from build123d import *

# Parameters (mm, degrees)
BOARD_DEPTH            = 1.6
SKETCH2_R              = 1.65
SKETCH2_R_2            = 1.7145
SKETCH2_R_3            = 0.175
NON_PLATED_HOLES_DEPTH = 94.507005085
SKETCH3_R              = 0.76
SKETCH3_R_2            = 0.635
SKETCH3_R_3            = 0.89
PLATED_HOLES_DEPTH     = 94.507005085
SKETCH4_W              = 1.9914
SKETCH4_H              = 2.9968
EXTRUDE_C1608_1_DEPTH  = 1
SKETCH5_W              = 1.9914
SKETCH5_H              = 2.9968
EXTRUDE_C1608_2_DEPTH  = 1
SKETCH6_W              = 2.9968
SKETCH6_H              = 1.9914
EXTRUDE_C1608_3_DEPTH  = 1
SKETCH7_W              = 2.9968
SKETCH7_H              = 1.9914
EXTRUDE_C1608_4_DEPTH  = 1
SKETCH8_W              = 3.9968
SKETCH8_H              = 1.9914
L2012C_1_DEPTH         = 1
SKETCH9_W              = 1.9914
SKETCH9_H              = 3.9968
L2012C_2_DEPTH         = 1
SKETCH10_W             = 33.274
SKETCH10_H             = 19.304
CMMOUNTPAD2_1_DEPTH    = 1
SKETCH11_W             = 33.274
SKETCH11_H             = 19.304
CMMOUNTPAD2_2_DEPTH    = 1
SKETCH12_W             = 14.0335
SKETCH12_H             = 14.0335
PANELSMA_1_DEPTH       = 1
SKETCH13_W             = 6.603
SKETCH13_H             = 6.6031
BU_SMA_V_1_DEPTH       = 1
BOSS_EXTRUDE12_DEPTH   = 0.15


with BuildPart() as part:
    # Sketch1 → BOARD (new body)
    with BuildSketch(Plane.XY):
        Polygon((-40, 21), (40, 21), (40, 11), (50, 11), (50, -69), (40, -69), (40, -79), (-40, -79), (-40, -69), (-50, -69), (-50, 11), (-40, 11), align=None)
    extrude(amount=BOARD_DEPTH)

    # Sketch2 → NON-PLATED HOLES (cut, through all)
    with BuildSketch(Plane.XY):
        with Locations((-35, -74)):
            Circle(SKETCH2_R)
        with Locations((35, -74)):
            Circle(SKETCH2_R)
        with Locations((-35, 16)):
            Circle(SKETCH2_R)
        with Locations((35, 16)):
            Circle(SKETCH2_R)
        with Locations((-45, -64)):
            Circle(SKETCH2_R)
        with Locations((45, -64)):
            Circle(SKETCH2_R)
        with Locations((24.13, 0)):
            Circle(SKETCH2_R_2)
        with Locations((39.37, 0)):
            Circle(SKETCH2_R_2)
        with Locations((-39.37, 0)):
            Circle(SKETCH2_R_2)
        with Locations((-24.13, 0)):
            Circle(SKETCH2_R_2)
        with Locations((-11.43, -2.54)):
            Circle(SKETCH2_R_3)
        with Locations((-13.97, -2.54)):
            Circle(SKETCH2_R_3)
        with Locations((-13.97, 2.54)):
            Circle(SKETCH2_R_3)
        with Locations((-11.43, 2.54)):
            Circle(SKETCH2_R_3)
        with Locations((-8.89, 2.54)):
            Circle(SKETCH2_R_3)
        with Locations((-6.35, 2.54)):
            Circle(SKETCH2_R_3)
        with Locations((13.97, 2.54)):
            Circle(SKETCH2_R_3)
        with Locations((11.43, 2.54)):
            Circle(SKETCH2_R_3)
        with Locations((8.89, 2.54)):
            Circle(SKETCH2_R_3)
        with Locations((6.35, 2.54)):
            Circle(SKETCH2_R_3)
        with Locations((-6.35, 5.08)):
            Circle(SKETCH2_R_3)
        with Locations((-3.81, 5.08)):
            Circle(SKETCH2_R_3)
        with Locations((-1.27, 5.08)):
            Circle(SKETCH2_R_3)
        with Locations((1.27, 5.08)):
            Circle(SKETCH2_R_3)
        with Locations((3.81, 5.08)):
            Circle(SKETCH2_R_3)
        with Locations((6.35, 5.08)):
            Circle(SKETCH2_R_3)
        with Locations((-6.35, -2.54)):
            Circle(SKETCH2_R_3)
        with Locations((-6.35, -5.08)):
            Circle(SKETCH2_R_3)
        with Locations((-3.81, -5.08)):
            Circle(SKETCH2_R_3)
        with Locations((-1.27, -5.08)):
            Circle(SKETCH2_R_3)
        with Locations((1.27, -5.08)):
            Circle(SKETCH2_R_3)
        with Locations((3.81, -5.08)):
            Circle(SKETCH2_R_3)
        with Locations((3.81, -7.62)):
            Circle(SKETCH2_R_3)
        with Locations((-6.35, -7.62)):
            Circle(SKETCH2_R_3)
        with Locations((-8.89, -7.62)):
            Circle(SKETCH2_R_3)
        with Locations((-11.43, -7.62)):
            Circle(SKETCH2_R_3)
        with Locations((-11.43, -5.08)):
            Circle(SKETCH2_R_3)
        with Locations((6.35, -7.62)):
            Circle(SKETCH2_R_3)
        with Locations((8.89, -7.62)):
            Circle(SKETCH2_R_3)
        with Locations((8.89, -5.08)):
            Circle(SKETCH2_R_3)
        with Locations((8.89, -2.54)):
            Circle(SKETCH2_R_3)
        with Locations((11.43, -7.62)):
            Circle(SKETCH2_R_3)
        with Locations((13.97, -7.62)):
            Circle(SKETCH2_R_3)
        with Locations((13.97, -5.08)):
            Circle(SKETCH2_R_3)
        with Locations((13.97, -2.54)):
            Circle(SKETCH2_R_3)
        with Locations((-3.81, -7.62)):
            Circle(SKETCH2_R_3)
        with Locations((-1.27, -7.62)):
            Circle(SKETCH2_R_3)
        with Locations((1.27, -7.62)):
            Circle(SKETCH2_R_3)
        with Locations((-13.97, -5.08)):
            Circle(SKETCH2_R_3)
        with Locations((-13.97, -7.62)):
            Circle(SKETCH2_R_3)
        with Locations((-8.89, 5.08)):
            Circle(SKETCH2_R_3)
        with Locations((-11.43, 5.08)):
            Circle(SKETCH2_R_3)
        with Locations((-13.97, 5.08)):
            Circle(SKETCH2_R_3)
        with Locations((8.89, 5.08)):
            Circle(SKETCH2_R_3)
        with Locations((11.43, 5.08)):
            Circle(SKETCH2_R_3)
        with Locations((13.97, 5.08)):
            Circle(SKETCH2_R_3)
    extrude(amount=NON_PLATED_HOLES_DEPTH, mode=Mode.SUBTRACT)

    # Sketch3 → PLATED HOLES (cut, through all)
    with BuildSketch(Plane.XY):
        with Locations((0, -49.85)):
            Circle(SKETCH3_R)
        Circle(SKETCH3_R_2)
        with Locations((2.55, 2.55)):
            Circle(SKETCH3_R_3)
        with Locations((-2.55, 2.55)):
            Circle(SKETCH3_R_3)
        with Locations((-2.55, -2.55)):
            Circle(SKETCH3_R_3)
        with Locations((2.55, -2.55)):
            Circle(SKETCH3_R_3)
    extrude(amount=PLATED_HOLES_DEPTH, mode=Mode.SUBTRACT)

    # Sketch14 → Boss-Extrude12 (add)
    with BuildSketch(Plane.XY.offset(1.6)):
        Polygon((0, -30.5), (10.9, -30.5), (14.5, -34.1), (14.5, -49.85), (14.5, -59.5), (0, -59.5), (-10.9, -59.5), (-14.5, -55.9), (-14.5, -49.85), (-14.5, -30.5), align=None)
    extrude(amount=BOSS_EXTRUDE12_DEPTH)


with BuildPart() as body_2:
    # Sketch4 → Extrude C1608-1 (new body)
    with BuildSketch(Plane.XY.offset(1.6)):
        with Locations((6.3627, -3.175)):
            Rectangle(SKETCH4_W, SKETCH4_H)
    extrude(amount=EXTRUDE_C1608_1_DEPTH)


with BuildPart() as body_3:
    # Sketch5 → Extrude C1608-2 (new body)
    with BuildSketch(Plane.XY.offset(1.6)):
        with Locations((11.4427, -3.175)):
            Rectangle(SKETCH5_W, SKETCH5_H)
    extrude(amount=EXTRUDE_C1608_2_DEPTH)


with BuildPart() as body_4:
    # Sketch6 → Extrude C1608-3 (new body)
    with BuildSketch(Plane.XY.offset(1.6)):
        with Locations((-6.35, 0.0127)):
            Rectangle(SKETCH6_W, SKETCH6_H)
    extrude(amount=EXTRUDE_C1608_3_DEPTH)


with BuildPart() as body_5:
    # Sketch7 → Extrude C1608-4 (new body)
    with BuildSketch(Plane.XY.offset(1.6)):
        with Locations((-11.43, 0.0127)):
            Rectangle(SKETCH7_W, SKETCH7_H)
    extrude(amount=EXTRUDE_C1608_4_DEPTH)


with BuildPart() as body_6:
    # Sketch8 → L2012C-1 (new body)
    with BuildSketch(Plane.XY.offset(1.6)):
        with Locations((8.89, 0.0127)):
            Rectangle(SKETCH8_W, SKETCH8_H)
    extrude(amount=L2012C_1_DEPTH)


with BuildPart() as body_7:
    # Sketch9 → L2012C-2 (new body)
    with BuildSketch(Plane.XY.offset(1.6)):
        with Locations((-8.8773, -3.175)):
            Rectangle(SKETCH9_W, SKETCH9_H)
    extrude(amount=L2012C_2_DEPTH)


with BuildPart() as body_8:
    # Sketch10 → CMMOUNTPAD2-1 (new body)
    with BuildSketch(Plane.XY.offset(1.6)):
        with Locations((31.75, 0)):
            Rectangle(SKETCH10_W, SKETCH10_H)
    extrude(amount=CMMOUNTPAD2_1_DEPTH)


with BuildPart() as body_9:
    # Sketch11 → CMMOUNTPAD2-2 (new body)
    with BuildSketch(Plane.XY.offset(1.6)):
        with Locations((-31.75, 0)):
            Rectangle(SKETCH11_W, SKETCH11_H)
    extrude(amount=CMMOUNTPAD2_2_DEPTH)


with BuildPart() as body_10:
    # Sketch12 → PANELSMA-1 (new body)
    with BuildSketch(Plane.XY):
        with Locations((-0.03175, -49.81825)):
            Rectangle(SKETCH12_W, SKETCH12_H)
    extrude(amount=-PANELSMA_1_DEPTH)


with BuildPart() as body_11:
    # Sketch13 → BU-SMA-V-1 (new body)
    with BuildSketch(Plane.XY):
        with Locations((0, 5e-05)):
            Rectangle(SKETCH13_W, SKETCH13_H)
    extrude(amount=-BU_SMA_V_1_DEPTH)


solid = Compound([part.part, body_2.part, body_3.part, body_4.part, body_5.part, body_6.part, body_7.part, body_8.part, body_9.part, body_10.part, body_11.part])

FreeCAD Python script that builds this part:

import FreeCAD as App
import Part
import Sketcher

V = App.Vector
Q = App.Units.Quantity


def add_polygon(sketch, points):
    """Adds a closed chain of lines whose ends are joined by coincident constraints."""
    first, n = sketch.GeometryCount, len(points)
    for a, b in zip(points, points[1:] + points[:1]):
        sketch.addGeometry(Part.LineSegment(App.Vector(*a, 0), App.Vector(*b, 0)), False)
    for i in range(n):
        sketch.addConstraint(Sketcher.Constraint("Coincident", first + i, 2, first + (i + 1) % n, 1))

doc = App.newDocument("Part")
body = doc.addObject("PartDesign::Body", "Body")

# Sketch on XY plane
sketch1 = doc.addObject("Sketcher::SketchObject", "Sketch")
body.addObject(sketch1)
sketch1.AttachmentSupport = (doc.XY_Plane, [""])
sketch1.MapMode = "FlatFace"
add_polygon(sketch1, [(40, 21), (-40, 21), (-40, 11), (-50, 11), (-50, -69), (-40, -69), (-40, -79), (40, -79), (40, -69), (50, -69), (50, 11), (40, 11)])  # lines 0-11
sketch1.addConstraint([
    Sketcher.Constraint("Horizontal", 0),
    Sketcher.Constraint("Vertical", 1),
    Sketcher.Constraint("Horizontal", 2),
    Sketcher.Constraint("Vertical", 3),
    Sketcher.Constraint("Horizontal", 4),
    Sketcher.Constraint("Vertical", 5),
    Sketcher.Constraint("Horizontal", 6),
    Sketcher.Constraint("Vertical", 7),
    Sketcher.Constraint("Horizontal", 8),
    Sketcher.Constraint("Vertical", 9),
    Sketcher.Constraint("Horizontal", 10),
    Sketcher.Constraint("Vertical", 11),
    Sketcher.Constraint("Symmetric", 4, 2, 7, 2, -2),
    Sketcher.Constraint("Symmetric", 2, 2, 9, 2, -2),
    Sketcher.Constraint("Vertical", 1, 2, 4, 2),
    Sketcher.Constraint("Vertical", 7, 2, 10, 2),
    Sketcher.Constraint("Equal", 10, 1),
    Sketcher.Constraint("Equal", 6, 3),
    Sketcher.Constraint("Equal", 1, 5),
    Sketcher.Constraint("DistanceX", 0, 2, 0, 1, 80.0),
    Sketcher.Constraint("DistanceX", 2, 2, 2, 1, 10.0),
    Sketcher.Constraint("DistanceY", -1, 1, 0, 2, 21.0),
])
pad1 = doc.addObject("PartDesign::Pad", "Pad")
body.addObject(pad1)
pad1.Profile = sketch1
pad1.Length = 1.6

# Sketch on XY plane
sketch2 = doc.addObject("Sketcher::SketchObject", "Sketch001")
body.addObject(sketch2)
sketch2.AttachmentSupport = (doc.XY_Plane, [""])
sketch2.MapMode = "FlatFace"
sketch2.addGeometry([
    Part.Circle(V(-35, -74, 0), V(0, 0, 1), 1.65),  # 0
    Part.Circle(V(35, -74, 0), V(0, 0, 1), 1.65),  # 1
    Part.Circle(V(-35, 16, 0), V(0, 0, 1), 1.65),  # 2
    Part.Circle(V(35, 16, 0), V(0, 0, 1), 1.65),  # 3
    Part.Circle(V(-45, -64, 0), V(0, 0, 1), 1.65),  # 4
    Part.Circle(V(45, -64, 0), V(0, 0, 1), 1.65),  # 5
    Part.Circle(V(24.13, 0, 0), V(0, 0, 1), 1.71),  # 6
    Part.Circle(V(39.37, 0, 0), V(0, 0, 1), 1.71),  # 7
    Part.Circle(V(-39.37, 0, 0), V(0, 0, 1), 1.71),  # 8
    Part.Circle(V(-24.13, 0, 0), V(0, 0, 1), 1.71),  # 9
    Part.Circle(V(-11.43, -2.54, 0), V(0, 0, 1), 0.17),  # 10
    Part.Circle(V(-13.97, -2.54, 0), V(0, 0, 1), 0.17),  # 11
    Part.Circle(V(-13.97, 2.54, 0), V(0, 0, 1), 0.17),  # 12
    Part.Circle(V(-11.43, 2.54, 0), V(0, 0, 1), 0.17),  # 13
    Part.Circle(V(-8.89, 2.54, 0), V(0, 0, 1), 0.17),  # 14
    Part.Circle(V(-6.35, 2.54, 0), V(0, 0, 1), 0.17),  # 15
    Part.Circle(V(13.97, 2.54, 0), V(0, 0, 1), 0.17),  # 16
    Part.Circle(V(11.43, 2.54, 0), V(0, 0, 1), 0.17),  # 17
    Part.Circle(V(8.89, 2.54, 0), V(0, 0, 1), 0.17),  # 18
    Part.Circle(V(6.35, 2.54, 0), V(0, 0, 1), 0.17),  # 19
    Part.Circle(V(-6.35, 5.08, 0), V(0, 0, 1), 0.17),  # 20
    Part.Circle(V(-3.81, 5.08, 0), V(0, 0, 1), 0.17),  # 21
    Part.Circle(V(-1.27, 5.08, 0), V(0, 0, 1), 0.17),  # 22
    Part.Circle(V(1.27, 5.08, 0), V(0, 0, 1), 0.17),  # 23
    Part.Circle(V(3.81, 5.08, 0), V(0, 0, 1), 0.17),  # 24
    Part.Circle(V(6.35, 5.08, 0), V(0, 0, 1), 0.17),  # 25
    Part.Circle(V(-6.35, -2.54, 0), V(0, 0, 1), 0.17),  # 26
    Part.Circle(V(-6.35, -5.08, 0), V(0, 0, 1), 0.17),  # 27
    Part.Circle(V(-3.81, -5.08, 0), V(0, 0, 1), 0.17),  # 28
    Part.Circle(V(-1.27, -5.08, 0), V(0, 0, 1), 0.17),  # 29
    Part.Circle(V(1.27, -5.08, 0), V(0, 0, 1), 0.17),  # 30
    Part.Circle(V(3.81, -5.08, 0), V(0, 0, 1), 0.17),  # 31
    Part.Circle(V(3.81, -7.62, 0), V(0, 0, 1), 0.17),  # 32
    Part.Circle(V(-6.35, -7.62, 0), V(0, 0, 1), 0.17),  # 33
    Part.Circle(V(-8.89, -7.62, 0), V(0, 0, 1), 0.17),  # 34
    Part.Circle(V(-11.43, -7.62, 0), V(0, 0, 1), 0.17),  # 35
    Part.Circle(V(-11.43, -5.08, 0), V(0, 0, 1), 0.17),  # 36
    Part.Circle(V(6.35, -7.62, 0), V(0, 0, 1), 0.17),  # 37
    Part.Circle(V(8.89, -7.62, 0), V(0, 0, 1), 0.17),  # 38
    Part.Circle(V(8.89, -5.08, 0), V(0, 0, 1), 0.17),  # 39
    Part.Circle(V(8.89, -2.54, 0), V(0, 0, 1), 0.17),  # 40
    Part.Circle(V(11.43, -7.62, 0), V(0, 0, 1), 0.17),  # 41
    Part.Circle(V(13.97, -7.62, 0), V(0, 0, 1), 0.17),  # 42
    Part.Circle(V(13.97, -5.08, 0), V(0, 0, 1), 0.17),  # 43
    Part.Circle(V(13.97, -2.54, 0), V(0, 0, 1), 0.17),  # 44
    Part.Circle(V(-3.81, -7.62, 0), V(0, 0, 1), 0.17),  # 45
    Part.Circle(V(-1.27, -7.62, 0), V(0, 0, 1), 0.17),  # 46
    Part.Circle(V(1.27, -7.62, 0), V(0, 0, 1), 0.17),  # 47
    Part.Circle(V(-13.97, -5.08, 0), V(0, 0, 1), 0.17),  # 48
    Part.Circle(V(-13.97, -7.62, 0), V(0, 0, 1), 0.17),  # 49
    Part.Circle(V(-8.89, 5.08, 0), V(0, 0, 1), 0.17),  # 50
    Part.Circle(V(-11.43, 5.08, 0), V(0, 0, 1), 0.17),  # 51
    Part.Circle(V(-13.97, 5.08, 0), V(0, 0, 1), 0.17),  # 52
    Part.Circle(V(8.89, 5.08, 0), V(0, 0, 1), 0.17),  # 53
    Part.Circle(V(11.43, 5.08, 0), V(0, 0, 1), 0.17),  # 54
    Part.Circle(V(13.97, 5.08, 0), V(0, 0, 1), 0.17),  # 55
], False)
sketch2.addConstraint([
    Sketcher.Constraint("Equal", 0, 1),
    Sketcher.Constraint("Equal", 1, 2),
    Sketcher.Constraint("Equal", 2, 3),
    Sketcher.Constraint("Equal", 3, 4),
    Sketcher.Constraint("Equal", 4, 5),
    Sketcher.Constraint("Equal", 6, 7),
    Sketcher.Constraint("Equal", 7, 8),
    Sketcher.Constraint("Equal", 8, 9),
    Sketcher.Constraint("Equal", 10, 11),
    Sketcher.Constraint("Equal", 11, 12),
    Sketcher.Constraint("Equal", 12, 13),
    Sketcher.Constraint("Equal", 13, 14),
    Sketcher.Constraint("Equal", 14, 15),
    Sketcher.Constraint("Equal", 15, 16),
    Sketcher.Constraint("Equal", 16, 17),
    Sketcher.Constraint("Equal", 17, 18),
    Sketcher.Constraint("Equal", 18, 19),
    Sketcher.Constraint("Equal", 19, 20),
    Sketcher.Constraint("Equal", 20, 21),
    Sketcher.Constraint("Equal", 21, 22),
    Sketcher.Constraint("Equal", 22, 23),
    Sketcher.Constraint("Equal", 23, 24),
    Sketcher.Constraint("Equal", 24, 25),
    Sketcher.Constraint("Equal", 25, 26),
    Sketcher.Constraint("Equal", 26, 27),
    Sketcher.Constraint("Equal", 27, 28),
    Sketcher.Constraint("Equal", 28, 29),
    Sketcher.Constraint("Equal", 29, 30),
    Sketcher.Constraint("Equal", 30, 31),
    Sketcher.Constraint("Equal", 31, 32),
    Sketcher.Constraint("Equal", 32, 33),
    Sketcher.Constraint("Equal", 33, 34),
    Sketcher.Constraint("Equal", 34, 35),
    Sketcher.Constraint("Equal", 35, 36),
    Sketcher.Constraint("Equal", 36, 37),
    Sketcher.Constraint("Equal", 37, 38),
    Sketcher.Constraint("Equal", 38, 39),
    Sketcher.Constraint("Equal", 39, 40),
    Sketcher.Constraint("Equal", 40, 41),
    Sketcher.Constraint("Equal", 41, 42),
    Sketcher.Constraint("Equal", 42, 43),
    Sketcher.Constraint("Equal", 43, 44),
    Sketcher.Constraint("Equal", 44, 45),
    Sketcher.Constraint("Equal", 45, 46),
    Sketcher.Constraint("Equal", 46, 47),
    Sketcher.Constraint("Equal", 47, 48),
    Sketcher.Constraint("Equal", 48, 49),
    Sketcher.Constraint("Equal", 49, 50),
    Sketcher.Constraint("Equal", 50, 51),
    Sketcher.Constraint("Equal", 51, 52),
    Sketcher.Constraint("Equal", 52, 53),
    Sketcher.Constraint("Equal", 53, 54),
    Sketcher.Constraint("Equal", 54, 55),
    Sketcher.Constraint("Symmetric", 7, 3, 8, 3, -1, 1),
    Sketcher.Constraint("Symmetric", 6, 3, 9, 3, -1, 1),
    Sketcher.Constraint("Symmetric", 11, 3, 16, 3, -1, 1),
    Sketcher.Constraint("Symmetric", 10, 3, 17, 3, -1, 1),
    Sketcher.Constraint("Symmetric", 19, 3, 26, 3, -1, 1),
    Sketcher.Constraint("Symmetric", 25, 3, 27, 3, -1, 1),
    Sketcher.Constraint("Symmetric", 24, 3, 28, 3, -1, 1),
    Sketcher.Constraint("Symmetric", 23, 3, 29, 3, -1, 1),
    Sketcher.Constraint("Symmetric", 22, 3, 30, 3, -1, 1),
    Sketcher.Constraint("Symmetric", 21, 3, 31, 3, -1, 1),
    Sketcher.Constraint("Symmetric", 14, 3, 40, 3, -1, 1),
    Sketcher.Constraint("Symmetric", 12, 3, 44, 3, -1, 1),
    Sketcher.Constraint("Symmetric", 39, 3, 50, 3, -1, 1),
    Sketcher.Constraint("Symmetric", 43, 3, 52, 3, -1, 1),
    Sketcher.Constraint("Symmetric", 36, 3, 54, 3, -1, 1),
    Sketcher.Constraint("Symmetric", 48, 3, 55, 3, -1, 1),
    Sketcher.Constraint("Symmetric", 0, 3, 1, 3, -2),
    Sketcher.Constraint("Symmetric", 2, 3, 3, 3, -2),
    Sketcher.Constraint("Symmetric", 4, 3, 5, 3, -2),
    Sketcher.Constraint("Symmetric", 12, 3, 16, 3, -2),
    Sketcher.Constraint("Symmetric", 13, 3, 17, 3, -2),
    Sketcher.Constraint("Symmetric", 14, 3, 18, 3, -2),
    Sketcher.Constraint("Symmetric", 15, 3, 19, 3, -2),
    Sketcher.Constraint("Symmetric", 22, 3, 23, 3, -2),
    Sketcher.Constraint("Symmetric", 21, 3, 24, 3, -2),
    Sketcher.Constraint("Symmetric", 20, 3, 25, 3, -2),
    Sketcher.Constraint("Symmetric", 33, 3, 37, 3, -2),
    Sketcher.Constraint("Symmetric", 34, 3, 38, 3, -2),
    Sketcher.Constraint("Symmetric", 35, 3, 41, 3, -2),
    Sketcher.Constraint("Symmetric", 32, 3, 45, 3, -2),
    Sketcher.Constraint("Symmetric", 46, 3, 47, 3, -2),
    Sketcher.Constraint("Symmetric", 43, 3, 48, 3, -2),
    Sketcher.Constraint("Symmetric", 42, 3, 49, 3, -2),
    Sketcher.Constraint("Symmetric", 50, 3, 53, 3, -2),
    Sketcher.Constraint("Symmetric", 51, 3, 54, 3, -2),
    Sketcher.Constraint("PointOnObject", 6, 3, -1),
    Sketcher.Constraint("PointOnObject", 7, 3, -1),
    Sketcher.Constraint("Horizontal", 10, 3, 11, 3),
    Sketcher.Constraint("Horizontal", 13, 3, 14, 3),
    Sketcher.Constraint("Horizontal", 14, 3, 15, 3),
    Sketcher.Constraint("Horizontal", 20, 3, 21, 3),
    Sketcher.Constraint("Horizontal", 21, 3, 22, 3),
    Sketcher.Constraint("Horizontal", 32, 3, 33, 3),
    Sketcher.Constraint("Horizontal", 33, 3, 34, 3),
    Sketcher.Constraint("Horizontal", 34, 3, 35, 3),
    Sketcher.Constraint("Horizontal", 31, 3, 36, 3),
    Sketcher.Constraint("Horizontal", 36, 3, 39, 3),
    Sketcher.Constraint("Horizontal", 41, 3, 42, 3),
    Sketcher.Constraint("Horizontal", 39, 3, 43, 3),
    Sketcher.Constraint("Horizontal", 45, 3, 46, 3),
    Sketcher.Constraint("Vertical", 0, 3, 2, 3),
    Sketcher.Constraint("Vertical", 15, 3, 20, 3),
    Sketcher.Constraint("Vertical", 31, 3, 32, 3),
    Sketcher.Constraint("Vertical", 27, 3, 33, 3),
    Sketcher.Constraint("Vertical", 14, 3, 34, 3),
    Sketcher.Constraint("Vertical", 13, 3, 35, 3),
    Sketcher.Constraint("Vertical", 35, 3, 36, 3),
    Sketcher.Constraint("Vertical", 38, 3, 39, 3),
    Sketcher.Constraint("Vertical", 16, 3, 42, 3),
    Sketcher.Constraint("Vertical", 42, 3, 43, 3),
    Sketcher.Constraint("Vertical", 29, 3, 46, 3),
    Sketcher.Constraint("Diameter", 0, 3.3),
    Sketcher.Constraint("Diameter", 10, 0.35),
    Sketcher.Constraint("Diameter", 6, 3.429),
    Sketcher.Constraint("DistanceX", 0, 3, -1, 1, 35.0),
    Sketcher.Constraint("DistanceY", 0, 3, -1, 1, 74.0),
    Sketcher.Constraint("DistanceY", -1, 1, 2, 3, 16.0),
    Sketcher.Constraint("DistanceX", 4, 3, -1, 1, 45.0),
    Sketcher.Constraint("DistanceY", 4, 3, -1, 1, 64.0),
    Sketcher.Constraint("DistanceX", 8, 3, 6, 3, 63.5),
    Sketcher.Constraint("DistanceX", 9, 3, 10, 3, 12.7),
    Sketcher.Constraint("DistanceX", 8, 3, 11, 3, 25.4),
    Sketcher.Constraint("DistanceX", 15, 3, 19, 3, 12.7),
    Sketcher.Constraint("DistanceX", -1, 1, 6, 3, 24.13),
    Sketcher.Constraint("DistanceY", 10, 3, -1, 1, 2.54),
    Sketcher.Constraint("DistanceX", 14, 3, -1, 1, 8.89),
    Sketcher.Constraint("DistanceY", -1, 1, 20, 3, 5.08),
    Sketcher.Constraint("DistanceX", 21, 3, -1, 1, 3.81),
    Sketcher.Constraint("DistanceX", 22, 3, -1, 1, 1.27),
    Sketcher.Constraint("DistanceY", 32, 3, -1, 1, 7.62),
])
pocket1 = doc.addObject("PartDesign::Pocket", "Pocket")
body.addObject(pocket1)
pocket1.Profile = sketch2
pocket1.Type = "ThroughAll"
pocket1.Reversed = True

# Sketch on XY plane
sketch3 = doc.addObject("Sketcher::SketchObject", "Sketch002")
body.addObject(sketch3)
sketch3.AttachmentSupport = (doc.XY_Plane, [""])
sketch3.MapMode = "FlatFace"
sketch3.addGeometry([
    Part.Circle(V(0, -49.9, 0), V(0, 0, 1), 0.8),  # 0
    Part.Circle(V(0, 0, 0), V(0, 0, 1), 0.6),  # 1
    Part.Circle(V(2.5, 2.5, 0), V(0, 0, 1), 0.9),  # 2
    Part.Circle(V(-2.5, 2.5, 0), V(0, 0, 1), 0.9),  # 3
    Part.Circle(V(-2.5, -2.5, 0), V(0, 0, 1), 0.9),  # 4
    Part.Circle(V(2.5, -2.5, 0), V(0, 0, 1), 0.9),  # 5
], False)
sketch3.addConstraint([
    Sketcher.Constraint("Coincident", 1, 3, -1, 1),
    Sketcher.Constraint("Equal", 2, 3),
    Sketcher.Constraint("Equal", 3, 4),
    Sketcher.Constraint("Equal", 4, 5),
    Sketcher.Constraint("Symmetric", 2, 3, 4, 3, -1, 1),
    Sketcher.Constraint("Symmetric", 3, 3, 5, 3, -1, 1),
    Sketcher.Constraint("Symmetric", 2, 3, 3, 3, -2),
    Sketcher.Constraint("PointOnObject", 0, 3, -2),
    Sketcher.Constraint("Diameter", 0, 1.52),
    Sketcher.Constraint("Diameter", 1, 1.27),
    Sketcher.Constraint("Diameter", 2, 1.78),
    Sketcher.Constraint("DistanceY", 0, 3, 2, 3, 52.4),
    Sketcher.Constraint("DistanceX", 3, 3, 2, 3, 5.1),
    Sketcher.Constraint("DistanceY", 4, 3, 3, 3, 5.1),
])
pocket2 = doc.addObject("PartDesign::Pocket", "Pocket001")
body.addObject(pocket2)
pocket2.Profile = sketch3
pocket2.Type = "ThroughAll"
pocket2.Reversed = True

# Sketch on XY plane
sketch4 = doc.addObject("Sketcher::SketchObject", "Sketch003")
body.addObject(sketch4)
sketch4.AttachmentSupport = (doc.XY_Plane, [""])
sketch4.MapMode = "FlatFace"
sketch4.AttachmentOffset = App.Placement(V(0, 0, 1.6), App.Rotation())
add_polygon(sketch4, [(11, -30), (-14, -30), (-14, -56), (-11, -60), (14, -60), (14, -34)])  # lines 0-5
sketch4.addConstraint([
    Sketcher.Constraint("Horizontal", 0),
    Sketcher.Constraint("Vertical", 1),
    Sketcher.Constraint("Horizontal", 3),
    Sketcher.Constraint("Vertical", 4),
    Sketcher.Constraint("Parallel", 2, 5),
    Sketcher.Constraint("Equal", 0, 3),
    Sketcher.Constraint("Equal", 3, 1),
    Sketcher.Constraint("Angle", 2, Q("-45 deg")),
    Sketcher.Constraint("DistanceX", 0, 2, 0, 1, 25.4),
    Sketcher.Constraint("DistanceY", 2, 2, 0, 2, 29.0),
    Sketcher.Constraint("DistanceX", 0, 2, -1, 1, 14.5),
    Sketcher.Constraint("DistanceY", 0, 2, -1, 1, 30.5),
])
pad2 = doc.addObject("PartDesign::Pad", "Pad001")
body.addObject(pad2)
pad2.Profile = sketch4
pad2.Length = 0.15
body2 = doc.addObject("PartDesign::Body", "Body001")

# Sketch on XY plane
sketch5 = doc.addObject("Sketcher::SketchObject", "Sketch004")
body2.addObject(sketch5)
sketch5.AttachmentSupport = (doc.getObject("XY_Plane001"), [""])
sketch5.MapMode = "FlatFace"
sketch5.AttachmentOffset = App.Placement(V(0, 0, 1.6), App.Rotation())
add_polygon(sketch5, [(5.4, -1.7), (5.4, -4.7), (7.4, -4.7), (7.4, -1.7)])  # lines 0-3
sketch5.addConstraint([
    Sketcher.Constraint("Vertical", 0),
    Sketcher.Constraint("Horizontal", 1),
    Sketcher.Constraint("Vertical", 2),
    Sketcher.Constraint("Horizontal", 3),
    Sketcher.Constraint("DistanceX", 1, 1, 1, 2, 1.9914),
    Sketcher.Constraint("DistanceY", 0, 2, 0, 1, 2.9968),
    Sketcher.Constraint("DistanceX", -1, 1, 0, 2, 5.367),
    Sketcher.Constraint("DistanceY", 0, 2, -1, 1, 4.6734),
])
pad3 = doc.addObject("PartDesign::Pad", "Pad002")
body2.addObject(pad3)
pad3.Profile = sketch5
pad3.Length = 1
body3 = doc.addObject("PartDesign::Body", "Body002")

# Sketch on XY plane
sketch6 = doc.addObject("Sketcher::SketchObject", "Sketch005")
body3.addObject(sketch6)
sketch6.AttachmentSupport = (doc.getObject("XY_Plane002"), [""])
sketch6.MapMode = "FlatFace"
sketch6.AttachmentOffset = App.Placement(V(0, 0, 1.6), App.Rotation())
add_polygon(sketch6, [(10.4, -1.7), (10.4, -4.7), (12.4, -4.7), (12.4, -1.7)])  # lines 0-3
sketch6.addConstraint([
    Sketcher.Constraint("Vertical", 0),
    Sketcher.Constraint("Horizontal", 1),
    Sketcher.Constraint("Vertical", 2),
    Sketcher.Constraint("Horizontal", 3),
    Sketcher.Constraint("DistanceX", 1, 1, 1, 2, 1.9914),
    Sketcher.Constraint("DistanceY", 0, 2, 0, 1, 2.9968),
    Sketcher.Constraint("DistanceX", -1, 1, 0, 2, 10.447),
    Sketcher.Constraint("DistanceY", 0, 2, -1, 1, 4.6734),
])
pad4 = doc.addObject("PartDesign::Pad", "Pad003")
body3.addObject(pad4)
pad4.Profile = sketch6
pad4.Length = 1
body4 = doc.addObject("PartDesign::Body", "Body003")

# Sketch on XY plane
sketch7 = doc.addObject("Sketcher::SketchObject", "Sketch006")
body4.addObject(sketch7)
sketch7.AttachmentSupport = (doc.getObject("XY_Plane003"), [""])
sketch7.MapMode = "FlatFace"
sketch7.AttachmentOffset = App.Placement(V(0, 0, 1.6), App.Rotation())
add_polygon(sketch7, [(-7.8, 1), (-7.8, -1), (-4.9, -1), (-4.9, 1)])  # lines 0-3
sketch7.addConstraint([
    Sketcher.Constraint("Vertical", 0),
    Sketcher.Constraint("Horizontal", 1),
    Sketcher.Constraint("Vertical", 2),
    Sketcher.Constraint("Horizontal", 3),
    Sketcher.Constraint("DistanceX", 1, 1, 1, 2, 2.9968),
    Sketcher.Constraint("DistanceY", 0, 2, 0, 1, 1.9914),
    Sketcher.Constraint("DistanceY", 0, 2, -1, 1, 0.983),
    Sketcher.Constraint("DistanceX", 0, 2, -1, 1, 7.8484),
])
pad5 = doc.addObject("PartDesign::Pad", "Pad004")
body4.addObject(pad5)
pad5.Profile = sketch7
pad5.Length = 1
body5 = doc.addObject("PartDesign::Body", "Body004")

# Sketch on XY plane
sketch8 = doc.addObject("Sketcher::SketchObject", "Sketch007")
body5.addObject(sketch8)
sketch8.AttachmentSupport = (doc.getObject("XY_Plane004"), [""])
sketch8.MapMode = "FlatFace"
sketch8.AttachmentOffset = App.Placement(V(0, 0, 1.6), App.Rotation())
add_polygon(sketch8, [(-12.9, 1), (-12.9, -1), (-9.9, -1), (-9.9, 1)])  # lines 0-3
sketch8.addConstraint([
    Sketcher.Constraint("Vertical", 0),
    Sketcher.Constraint("Horizontal", 1),
    Sketcher.Constraint("Vertical", 2),
    Sketcher.Constraint("Horizontal", 3),
    Sketcher.Constraint("DistanceX", 1, 1, 1, 2, 2.9968),
    Sketcher.Constraint("DistanceY", 0, 2, 0, 1, 1.9914),
    Sketcher.Constraint("DistanceY", 0, 2, -1, 1, 0.983),
    Sketcher.Constraint("DistanceX", 0, 2, -1, 1, 12.9284),
])
pad6 = doc.addObject("PartDesign::Pad", "Pad005")
body5.addObject(pad6)
pad6.Profile = sketch8
pad6.Length = 1
body6 = doc.addObject("PartDesign::Body", "Body005")

# Sketch on XY plane
sketch9 = doc.addObject("Sketcher::SketchObject", "Sketch008")
body6.addObject(sketch9)
sketch9.AttachmentSupport = (doc.getObject("XY_Plane005"), [""])
sketch9.MapMode = "FlatFace"
sketch9.AttachmentOffset = App.Placement(V(0, 0, 1.6), App.Rotation())
add_polygon(sketch9, [(6.9, 1), (6.9, -1), (10.9, -1), (10.9, 1)])  # lines 0-3
sketch9.addConstraint([
    Sketcher.Constraint("Vertical", 0),
    Sketcher.Constraint("Horizontal", 1),
    Sketcher.Constraint("Vertical", 2),
    Sketcher.Constraint("Horizontal", 3),
    Sketcher.Constraint("DistanceX", 1, 1, 1, 2, 3.9968),
    Sketcher.Constraint("DistanceY", 0, 2, 0, 1, 1.9914),
    Sketcher.Constraint("DistanceY", 0, 2, -1, 1, 0.983),
    Sketcher.Constraint("DistanceX", -1, 1, 0, 2, 6.8916),
])
pad7 = doc.addObject("PartDesign::Pad", "Pad006")
body6.addObject(pad7)
pad7.Profile = sketch9
pad7.Length = 1
body7 = doc.addObject("PartDesign::Body", "Body006")

# Sketch on XY plane
sketch10 = doc.addObject("Sketcher::SketchObject", "Sketch009")
body7.addObject(sketch10)
sketch10.AttachmentSupport = (doc.getObject("XY_Plane006"), [""])
sketch10.MapMode = "FlatFace"
sketch10.AttachmentOffset = App.Placement(V(0, 0, 1.6), App.Rotation())
add_polygon(sketch10, [(-9.9, -1.2), (-9.9, -5.2), (-7.9, -5.2), (-7.9, -1.2)])  # lines 0-3
sketch10.addConstraint([
    Sketcher.Constraint("Vertical", 0),
    Sketcher.Constraint("Horizontal", 1),
    Sketcher.Constraint("Vertical", 2),
    Sketcher.Constraint("Horizontal", 3),
    Sketcher.Constraint("DistanceX", 1, 1, 1, 2, 1.9914),
    Sketcher.Constraint("DistanceY", 0, 2, 0, 1, 3.9968),
    Sketcher.Constraint("DistanceX", 0, 2, -1, 1, 9.873),
    Sketcher.Constraint("DistanceY", 0, 2, -1, 1, 5.1734),
])
pad8 = doc.addObject("PartDesign::Pad", "Pad007")
body7.addObject(pad8)
pad8.Profile = sketch10
pad8.Length = 1
body8 = doc.addObject("PartDesign::Body", "Body007")

# Sketch on XY plane
sketch11 = doc.addObject("Sketcher::SketchObject", "Sketch010")
body8.addObject(sketch11)
sketch11.AttachmentSupport = (doc.getObject("XY_Plane007"), [""])
sketch11.MapMode = "FlatFace"
sketch11.AttachmentOffset = App.Placement(V(0, 0, 1.6), App.Rotation())
add_polygon(sketch11, [(15, 10), (15, -10), (48, -10), (48, 10)])  # lines 0-3
sketch11.addConstraint([
    Sketcher.Constraint("Vertical", 0),
    Sketcher.Constraint("Horizontal", 1),
    Sketcher.Constraint("Vertical", 2),
    Sketcher.Constraint("Horizontal", 3),
    Sketcher.Constraint("DistanceX", 1, 1, 1, 2, 33.274),
    Sketcher.Constraint("DistanceY", 0, 2, 0, 1, 19.304),
    Sketcher.Constraint("DistanceX", -1, 1, 0, 2, 15.113),
    Sketcher.Constraint("DistanceY", 0, 2, -1, 1, 9.652),
])
pad9 = doc.addObject("PartDesign::Pad", "Pad008")
body8.addObject(pad9)
pad9.Profile = sketch11
pad9.Length = 1
body9 = doc.addObject("PartDesign::Body", "Body008")

# Sketch on XY plane
sketch12 = doc.addObject("Sketcher::SketchObject", "Sketch011")
body9.addObject(sketch12)
sketch12.AttachmentSupport = (doc.getObject("XY_Plane008"), [""])
sketch12.MapMode = "FlatFace"
sketch12.AttachmentOffset = App.Placement(V(0, 0, 1.6), App.Rotation())
add_polygon(sketch12, [(-48, 10), (-48, -10), (-15, -10), (-15, 10)])  # lines 0-3
sketch12.addConstraint([
    Sketcher.Constraint("Vertical", 0),
    Sketcher.Constraint("Horizontal", 1),
    Sketcher.Constraint("Vertical", 2),
    Sketcher.Constraint("Horizontal", 3),
    Sketcher.Constraint("DistanceX", 1, 1, 1, 2, 33.274),
    Sketcher.Constraint("DistanceY", 0, 2, 0, 1, 19.304),
    Sketcher.Constraint("DistanceX", 0, 2, -1, 1, 48.387),
    Sketcher.Constraint("DistanceY", 0, 2, -1, 1, 9.652),
])
pad10 = doc.addObject("PartDesign::Pad", "Pad009")
body9.addObject(pad10)
pad10.Profile = sketch12
pad10.Length = 1
body10 = doc.addObject("PartDesign::Body", "Body009")

# Sketch on XY plane
sketch13 = doc.addObject("Sketcher::SketchObject", "Sketch012")
body10.addObject(sketch13)
sketch13.AttachmentSupport = (doc.getObject("XY_Plane009"), [""])
sketch13.MapMode = "FlatFace"
add_polygon(sketch13, [(-7, -43), (-7, -57), (7, -57), (7, -43)])  # lines 0-3
sketch13.addConstraint([
    Sketcher.Constraint("Vertical", 0),
    Sketcher.Constraint("Horizontal", 1),
    Sketcher.Constraint("Vertical", 2),
    Sketcher.Constraint("Horizontal", 3),
    Sketcher.Constraint("Equal", 3, 0),
    Sketcher.Constraint("DistanceX", 1, 1, 1, 2, 14.0335),
    Sketcher.Constraint("DistanceY", 0, 2, -1, 1, 56.835),
    Sketcher.Constraint("DistanceX", -1, 1, 1, 2, 6.985),
])
pad11 = doc.addObject("PartDesign::Pad", "Pad010")
body10.addObject(pad11)
pad11.Profile = sketch13
pad11.Length = 1
pad11.Reversed = True
body11 = doc.addObject("PartDesign::Body", "Body010")

# Sketch on XY plane
sketch14 = doc.addObject("Sketcher::SketchObject", "Sketch013")
body11.addObject(sketch14)
sketch14.AttachmentSupport = (doc.getObject("XY_Plane010"), [""])
sketch14.MapMode = "FlatFace"
add_polygon(sketch14, [(-3, 3), (-3, -3), (3, -3), (3, 3)])  # lines 0-3
sketch14.addConstraint([
    Sketcher.Constraint("Vertical", 0),
    Sketcher.Constraint("Horizontal", 1),
    Sketcher.Constraint("Vertical", 2),
    Sketcher.Constraint("Horizontal", 3),
    Sketcher.Constraint("DistanceX", 1, 1, 1, 2, 6.603),
    Sketcher.Constraint("DistanceY", 0, 2, 0, 1, 6.6031),
    Sketcher.Constraint("DistanceX", 0, 2, -1, 1, 3.3015),
    Sketcher.Constraint("DistanceY", 0, 2, -1, 1, 3.3015),
])
pad12 = doc.addObject("PartDesign::Pad", "Pad011")
body11.addObject(pad12)
pad12.Profile = sketch14
pad12.Length = 1
pad12.Reversed = True

doc.recompute()
